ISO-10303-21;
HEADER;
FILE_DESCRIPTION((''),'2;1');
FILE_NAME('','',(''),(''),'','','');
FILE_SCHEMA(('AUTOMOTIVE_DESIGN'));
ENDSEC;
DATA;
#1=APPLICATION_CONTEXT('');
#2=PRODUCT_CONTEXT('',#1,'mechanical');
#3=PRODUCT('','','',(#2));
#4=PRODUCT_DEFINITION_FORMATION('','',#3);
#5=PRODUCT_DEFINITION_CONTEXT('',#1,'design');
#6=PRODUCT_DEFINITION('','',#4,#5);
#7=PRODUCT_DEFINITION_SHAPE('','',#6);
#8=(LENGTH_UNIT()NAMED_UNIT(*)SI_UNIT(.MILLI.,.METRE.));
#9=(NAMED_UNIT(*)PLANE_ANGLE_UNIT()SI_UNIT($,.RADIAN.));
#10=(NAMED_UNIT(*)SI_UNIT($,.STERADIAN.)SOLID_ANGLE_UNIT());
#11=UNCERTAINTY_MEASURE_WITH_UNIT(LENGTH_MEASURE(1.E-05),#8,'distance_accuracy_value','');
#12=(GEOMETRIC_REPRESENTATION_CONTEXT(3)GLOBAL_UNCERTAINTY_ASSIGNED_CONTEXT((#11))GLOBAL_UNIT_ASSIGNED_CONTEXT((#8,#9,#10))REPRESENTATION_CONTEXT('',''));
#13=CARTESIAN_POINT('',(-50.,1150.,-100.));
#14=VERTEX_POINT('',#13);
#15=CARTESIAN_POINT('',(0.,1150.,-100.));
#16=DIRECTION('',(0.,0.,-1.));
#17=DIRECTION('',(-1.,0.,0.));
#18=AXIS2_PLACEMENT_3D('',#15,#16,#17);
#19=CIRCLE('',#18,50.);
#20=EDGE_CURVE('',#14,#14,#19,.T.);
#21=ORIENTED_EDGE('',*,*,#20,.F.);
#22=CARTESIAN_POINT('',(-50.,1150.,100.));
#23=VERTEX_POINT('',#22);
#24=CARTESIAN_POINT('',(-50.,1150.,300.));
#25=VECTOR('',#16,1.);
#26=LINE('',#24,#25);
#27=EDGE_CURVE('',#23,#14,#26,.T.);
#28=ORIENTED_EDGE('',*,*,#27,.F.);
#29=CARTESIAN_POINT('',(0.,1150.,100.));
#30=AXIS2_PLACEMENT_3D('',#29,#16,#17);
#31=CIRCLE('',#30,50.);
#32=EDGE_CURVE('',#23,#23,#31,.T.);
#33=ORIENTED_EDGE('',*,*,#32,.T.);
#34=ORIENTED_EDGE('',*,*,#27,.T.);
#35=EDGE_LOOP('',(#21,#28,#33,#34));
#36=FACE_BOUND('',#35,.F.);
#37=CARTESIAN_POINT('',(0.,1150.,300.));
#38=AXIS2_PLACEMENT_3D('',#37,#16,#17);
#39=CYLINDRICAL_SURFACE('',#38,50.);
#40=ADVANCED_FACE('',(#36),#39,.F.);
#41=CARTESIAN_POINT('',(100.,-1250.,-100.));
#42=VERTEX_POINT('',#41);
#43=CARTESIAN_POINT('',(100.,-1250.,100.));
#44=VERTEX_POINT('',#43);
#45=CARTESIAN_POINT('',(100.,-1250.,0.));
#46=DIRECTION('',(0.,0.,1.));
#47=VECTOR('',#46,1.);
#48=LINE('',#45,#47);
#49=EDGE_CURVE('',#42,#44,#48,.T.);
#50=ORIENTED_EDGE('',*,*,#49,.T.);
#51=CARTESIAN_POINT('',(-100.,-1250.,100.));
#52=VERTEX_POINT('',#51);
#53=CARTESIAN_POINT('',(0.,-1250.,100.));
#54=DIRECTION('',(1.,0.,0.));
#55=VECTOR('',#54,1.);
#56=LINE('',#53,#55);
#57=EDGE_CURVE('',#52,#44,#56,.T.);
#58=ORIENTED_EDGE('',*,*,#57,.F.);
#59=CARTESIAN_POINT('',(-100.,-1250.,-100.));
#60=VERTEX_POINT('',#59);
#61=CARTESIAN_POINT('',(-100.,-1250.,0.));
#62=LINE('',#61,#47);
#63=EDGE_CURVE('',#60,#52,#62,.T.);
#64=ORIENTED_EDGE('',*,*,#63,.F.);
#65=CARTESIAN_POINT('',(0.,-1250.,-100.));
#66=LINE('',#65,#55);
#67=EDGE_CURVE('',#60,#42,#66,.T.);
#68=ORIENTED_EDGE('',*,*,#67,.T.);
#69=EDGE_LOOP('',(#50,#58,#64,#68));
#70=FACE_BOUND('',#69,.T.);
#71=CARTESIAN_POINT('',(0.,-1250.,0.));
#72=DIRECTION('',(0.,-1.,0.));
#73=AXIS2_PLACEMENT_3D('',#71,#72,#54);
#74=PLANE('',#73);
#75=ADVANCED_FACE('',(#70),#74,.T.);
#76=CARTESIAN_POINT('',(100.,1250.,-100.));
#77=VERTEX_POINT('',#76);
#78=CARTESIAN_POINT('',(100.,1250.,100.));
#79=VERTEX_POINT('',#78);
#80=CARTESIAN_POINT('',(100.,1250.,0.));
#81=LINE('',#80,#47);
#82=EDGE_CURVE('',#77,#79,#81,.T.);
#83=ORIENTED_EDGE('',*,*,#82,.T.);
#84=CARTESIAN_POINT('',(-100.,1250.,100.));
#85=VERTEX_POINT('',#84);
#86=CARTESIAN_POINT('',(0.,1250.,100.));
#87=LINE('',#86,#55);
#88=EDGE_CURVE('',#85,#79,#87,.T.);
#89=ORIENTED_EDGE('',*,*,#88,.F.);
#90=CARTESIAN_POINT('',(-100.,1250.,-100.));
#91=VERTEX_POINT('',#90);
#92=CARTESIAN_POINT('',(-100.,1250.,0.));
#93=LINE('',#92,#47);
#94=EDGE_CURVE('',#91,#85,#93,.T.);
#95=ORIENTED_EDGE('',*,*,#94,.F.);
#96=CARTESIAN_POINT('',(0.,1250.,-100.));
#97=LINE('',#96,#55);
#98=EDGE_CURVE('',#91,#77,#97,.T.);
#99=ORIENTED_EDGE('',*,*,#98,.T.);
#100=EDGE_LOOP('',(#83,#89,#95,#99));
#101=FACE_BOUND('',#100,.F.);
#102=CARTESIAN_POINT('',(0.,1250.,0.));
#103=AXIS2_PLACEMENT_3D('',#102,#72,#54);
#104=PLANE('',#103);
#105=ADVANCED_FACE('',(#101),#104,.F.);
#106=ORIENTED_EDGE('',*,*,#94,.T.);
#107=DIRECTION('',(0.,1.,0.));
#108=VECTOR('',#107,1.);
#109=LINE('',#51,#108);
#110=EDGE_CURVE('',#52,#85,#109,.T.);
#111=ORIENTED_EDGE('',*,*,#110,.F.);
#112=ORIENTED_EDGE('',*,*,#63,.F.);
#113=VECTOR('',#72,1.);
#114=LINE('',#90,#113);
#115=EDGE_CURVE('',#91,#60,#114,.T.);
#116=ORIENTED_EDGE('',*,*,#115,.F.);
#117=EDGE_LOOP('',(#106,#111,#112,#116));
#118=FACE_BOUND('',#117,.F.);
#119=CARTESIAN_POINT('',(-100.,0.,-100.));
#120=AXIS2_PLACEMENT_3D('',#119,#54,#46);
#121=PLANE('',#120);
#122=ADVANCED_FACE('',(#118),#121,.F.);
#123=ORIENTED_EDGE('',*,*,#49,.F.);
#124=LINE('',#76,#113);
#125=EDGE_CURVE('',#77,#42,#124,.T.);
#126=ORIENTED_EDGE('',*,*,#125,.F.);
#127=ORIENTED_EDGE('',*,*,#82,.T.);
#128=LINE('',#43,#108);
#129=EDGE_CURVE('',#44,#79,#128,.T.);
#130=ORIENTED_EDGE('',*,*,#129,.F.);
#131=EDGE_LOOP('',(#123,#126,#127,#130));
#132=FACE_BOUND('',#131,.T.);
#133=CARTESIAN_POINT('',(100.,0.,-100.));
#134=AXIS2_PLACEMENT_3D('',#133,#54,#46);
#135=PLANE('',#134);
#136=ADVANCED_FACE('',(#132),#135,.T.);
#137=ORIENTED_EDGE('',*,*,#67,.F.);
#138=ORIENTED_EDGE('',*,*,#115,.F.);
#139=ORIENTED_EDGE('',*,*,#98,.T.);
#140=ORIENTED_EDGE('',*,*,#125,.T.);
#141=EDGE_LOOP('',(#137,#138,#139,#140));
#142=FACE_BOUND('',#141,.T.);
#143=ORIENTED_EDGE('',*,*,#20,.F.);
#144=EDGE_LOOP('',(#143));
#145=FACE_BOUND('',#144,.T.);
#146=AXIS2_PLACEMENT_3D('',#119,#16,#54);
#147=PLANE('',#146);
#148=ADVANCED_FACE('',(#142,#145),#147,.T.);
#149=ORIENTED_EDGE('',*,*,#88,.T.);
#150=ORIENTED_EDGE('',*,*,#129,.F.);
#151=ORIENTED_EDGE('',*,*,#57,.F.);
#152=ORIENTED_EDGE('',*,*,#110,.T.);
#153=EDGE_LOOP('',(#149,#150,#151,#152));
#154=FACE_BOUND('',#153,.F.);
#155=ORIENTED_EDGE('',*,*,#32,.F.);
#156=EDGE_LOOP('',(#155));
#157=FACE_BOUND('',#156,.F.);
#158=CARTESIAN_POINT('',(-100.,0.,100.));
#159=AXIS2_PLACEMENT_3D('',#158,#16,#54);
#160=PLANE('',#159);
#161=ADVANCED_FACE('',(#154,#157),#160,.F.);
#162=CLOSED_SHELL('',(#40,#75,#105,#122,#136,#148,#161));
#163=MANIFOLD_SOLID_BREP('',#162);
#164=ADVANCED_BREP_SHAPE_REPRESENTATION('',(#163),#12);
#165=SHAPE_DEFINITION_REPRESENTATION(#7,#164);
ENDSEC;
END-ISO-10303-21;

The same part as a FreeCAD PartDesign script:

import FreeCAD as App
import Part
import Sketcher
Q = App.Units.Quantity

doc = App.newDocument("Part")
body = doc.addObject("PartDesign::Body", "Body")

sketch1 = body.newObject("Sketcher::SketchObject", "Sketch")
sketch1.AttachmentSupport = (doc.getObject("XZ_Plane"), [""])
sketch1.MapMode = "FlatFace"
sketch1.addGeometry([
    Part.LineSegment(App.Vector(-100, 100, 0), App.Vector(-100, -100, 0)),
    Part.LineSegment(App.Vector(-100, -100, 0), App.Vector(100, -100, 0)),
    Part.LineSegment(App.Vector(100, -100, 0), App.Vector(100, 100, 0)),
    Part.LineSegment(App.Vector(100, 100, 0), App.Vector(-100, 100, 0)),
], False)
sketch1.addConstraint([
    Sketcher.Constraint("Coincident", 0, 2, 1, 1),
    Sketcher.Constraint("Coincident", 1, 2, 2, 1),
    Sketcher.Constraint("Coincident", 2, 2, 3, 1),
    Sketcher.Constraint("Coincident", 3, 2, 0, 1),
    Sketcher.Constraint("Vertical", 0),
    Sketcher.Constraint("Horizontal", 1),
    Sketcher.Constraint("Vertical", 2),
    Sketcher.Constraint("Horizontal", 3),
    Sketcher.Constraint("Symmetric", 0, 2, 2, 2, -1, 1),
    Sketcher.Constraint("Equal", 3, 0),
    Sketcher.Constraint("DistanceX", 1, 1, 1, 2, Q("200 mm")),
])
pad1 = body.newObject("PartDesign::Pad", "Pad")
pad1.Profile = sketch1
pad1.Length = 2500
pad1.Midplane = True

sketch2 = body.newObject("Sketcher::SketchObject", "Sketch001")
sketch2.AttachmentSupport = (doc.getObject("XY_Plane"), [""])
sketch2.MapMode = "FlatFace"
sketch2.AttachmentOffset = App.Placement(App.Vector(0, 0, 100), App.Rotation())
sketch2.addGeometry(Part.Circle(App.Vector(0, 1150, 0), App.Vector(0, 0, 1), 50), False)
sketch2.addConstraint([
    Sketcher.Constraint("PointOnObject", 0, 3, -2),
    Sketcher.Constraint("Diameter", 0, Q("100 mm")),
    Sketcher.Constraint("DistanceY", -1, 1, 0, 3, Q("1150 mm")),
])
doc.recompute()
hole = body.newObject("PartDesign::Hole", "Hole")
hole.Profile = sketch2
hole.ThreadType = "None"
hole.Diameter = 100
hole.DepthType = "Dimension"
hole.Depth = 200
hole.DrillPoint = "Flat"

doc.recompute()
